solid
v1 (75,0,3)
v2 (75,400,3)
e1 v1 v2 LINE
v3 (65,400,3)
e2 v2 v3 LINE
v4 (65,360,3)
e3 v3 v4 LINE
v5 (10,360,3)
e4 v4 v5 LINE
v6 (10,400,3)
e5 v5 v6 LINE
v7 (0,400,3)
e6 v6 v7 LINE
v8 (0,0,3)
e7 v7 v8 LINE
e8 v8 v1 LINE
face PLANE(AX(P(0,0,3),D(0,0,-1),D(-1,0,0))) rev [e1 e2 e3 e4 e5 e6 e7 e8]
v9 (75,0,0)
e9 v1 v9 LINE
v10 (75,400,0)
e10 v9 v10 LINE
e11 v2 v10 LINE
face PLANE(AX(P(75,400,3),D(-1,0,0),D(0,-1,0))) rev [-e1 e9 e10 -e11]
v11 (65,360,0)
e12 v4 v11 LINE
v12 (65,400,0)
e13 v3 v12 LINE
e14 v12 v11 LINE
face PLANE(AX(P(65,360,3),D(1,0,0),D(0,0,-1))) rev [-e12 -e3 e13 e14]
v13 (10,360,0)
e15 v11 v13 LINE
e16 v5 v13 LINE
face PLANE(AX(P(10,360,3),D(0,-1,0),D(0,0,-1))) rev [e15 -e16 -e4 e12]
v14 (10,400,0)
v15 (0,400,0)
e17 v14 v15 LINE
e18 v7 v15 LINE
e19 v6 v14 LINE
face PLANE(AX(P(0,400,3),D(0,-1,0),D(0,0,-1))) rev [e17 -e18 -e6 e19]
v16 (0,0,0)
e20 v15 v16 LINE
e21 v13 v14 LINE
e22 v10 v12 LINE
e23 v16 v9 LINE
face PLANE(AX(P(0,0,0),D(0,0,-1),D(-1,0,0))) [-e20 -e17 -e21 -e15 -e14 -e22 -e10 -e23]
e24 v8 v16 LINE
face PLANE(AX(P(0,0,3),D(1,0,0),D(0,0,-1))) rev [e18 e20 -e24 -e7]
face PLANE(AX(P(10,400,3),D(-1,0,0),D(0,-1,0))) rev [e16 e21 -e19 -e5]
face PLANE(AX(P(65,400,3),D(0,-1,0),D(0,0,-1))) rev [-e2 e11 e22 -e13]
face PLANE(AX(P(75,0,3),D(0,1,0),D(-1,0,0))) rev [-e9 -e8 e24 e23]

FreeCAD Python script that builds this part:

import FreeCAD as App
import Part
import Sketcher

V = App.Vector
Q = App.Units.Quantity

doc = App.newDocument("Part")
params = doc.addObject("Spreadsheet::Sheet", "Params")
for row, (alias, value) in enumerate([
    ("sketch1_width", "75 mm"),
    ("sketch1_width2", "10 mm"),
    ("sketch1_height", "400 mm"),
    ("sketch1_height2", "40 mm"),
    ("pad1_length", "3 mm"),
], start=1):
    params.set(f"A{row}", alias)
    params.set(f"B{row}", "=" + value)
    params.setAlias(f"B{row}", alias)

body = doc.addObject("PartDesign::Body", "Body")

# Sketch on XY plane
sketch1 = doc.addObject("Sketcher::SketchObject", "Sketch")
body.addObject(sketch1)
sketch1.AttachmentSupport = (doc.XY_Plane, [""])
sketch1.MapMode = "FlatFace"
sketch1.addGeometry([
    Part.LineSegment(V(0, 400, 0), V(0, 0, 0)),  # 0
    Part.LineSegment(V(0, 0, 0), V(75, 0, 0)),  # 1
    Part.LineSegment(V(75, 0, 0), V(75, 400, 0)),  # 2
    Part.LineSegment(V(75, 400, 0), V(65, 400, 0)),  # 3
    Part.LineSegment(V(65, 400, 0), V(65, 360, 0)),  # 4
    Part.LineSegment(V(65, 360, 0), V(10, 360, 0)),  # 5
    Part.LineSegment(V(10, 360, 0), V(10, 400, 0)),  # 6
    Part.LineSegment(V(10, 400, 0), V(0, 400, 0)),  # 7
], False)
sketch1.addConstraint([
    Sketcher.Constraint("Coincident", 0, 2, 1, 1),
    Sketcher.Constraint("Coincident", 1, 2, 2, 1),
    Sketcher.Constraint("Coincident", 2, 2, 3, 1),
    Sketcher.Constraint("Coincident", 3, 2, 4, 1),
    Sketcher.Constraint("Coincident", 4, 2, 5, 1),
    Sketcher.Constraint("Coincident", 5, 2, 6, 1),
    Sketcher.Constraint("Coincident", 6, 2, 7, 1),
    Sketcher.Constraint("Coincident", 7, 2, 0, 1),
    Sketcher.Constraint("Vertical", 0),
    Sketcher.Constraint("Horizontal", 1),
    Sketcher.Constraint("Vertical", 2),
    Sketcher.Constraint("Horizontal", 3),
    Sketcher.Constraint("Vertical", 4),
    Sketcher.Constraint("Horizontal", 5),
    Sketcher.Constraint("Vertical", 6),
    Sketcher.Constraint("Horizontal", 7),
    Sketcher.Constraint("Coincident", 0, 2, -1, 1),
    Sketcher.Constraint("Horizontal", 3, 2, 6, 2),
    Sketcher.Constraint("Equal", 3, 7),
    Sketcher.Constraint("DistanceX", 1, 1, 1, 2, Q("75 mm")),
    Sketcher.Constraint("DistanceX", 3, 2, 3, 1, Q("10 mm")),
    Sketcher.Constraint("DistanceY", 0, 2, 0, 1, Q("400 mm")),
    Sketcher.Constraint("DistanceY", 4, 2, 4, 1, Q("40 mm")),
])
sketch1.setExpression("Constraints[19]", "Params.sketch1_width")
sketch1.setExpression("Constraints[20]", "Params.sketch1_width2")
sketch1.setExpression("Constraints[21]", "Params.sketch1_height")
sketch1.setExpression("Constraints[22]", "Params.sketch1_height2")
pad1 = doc.addObject("PartDesign::Pad", "Pad")
body.addObject(pad1)
pad1.Profile = sketch1
pad1.setExpression("Length", "Params.pad1_length")

doc.recompute()
